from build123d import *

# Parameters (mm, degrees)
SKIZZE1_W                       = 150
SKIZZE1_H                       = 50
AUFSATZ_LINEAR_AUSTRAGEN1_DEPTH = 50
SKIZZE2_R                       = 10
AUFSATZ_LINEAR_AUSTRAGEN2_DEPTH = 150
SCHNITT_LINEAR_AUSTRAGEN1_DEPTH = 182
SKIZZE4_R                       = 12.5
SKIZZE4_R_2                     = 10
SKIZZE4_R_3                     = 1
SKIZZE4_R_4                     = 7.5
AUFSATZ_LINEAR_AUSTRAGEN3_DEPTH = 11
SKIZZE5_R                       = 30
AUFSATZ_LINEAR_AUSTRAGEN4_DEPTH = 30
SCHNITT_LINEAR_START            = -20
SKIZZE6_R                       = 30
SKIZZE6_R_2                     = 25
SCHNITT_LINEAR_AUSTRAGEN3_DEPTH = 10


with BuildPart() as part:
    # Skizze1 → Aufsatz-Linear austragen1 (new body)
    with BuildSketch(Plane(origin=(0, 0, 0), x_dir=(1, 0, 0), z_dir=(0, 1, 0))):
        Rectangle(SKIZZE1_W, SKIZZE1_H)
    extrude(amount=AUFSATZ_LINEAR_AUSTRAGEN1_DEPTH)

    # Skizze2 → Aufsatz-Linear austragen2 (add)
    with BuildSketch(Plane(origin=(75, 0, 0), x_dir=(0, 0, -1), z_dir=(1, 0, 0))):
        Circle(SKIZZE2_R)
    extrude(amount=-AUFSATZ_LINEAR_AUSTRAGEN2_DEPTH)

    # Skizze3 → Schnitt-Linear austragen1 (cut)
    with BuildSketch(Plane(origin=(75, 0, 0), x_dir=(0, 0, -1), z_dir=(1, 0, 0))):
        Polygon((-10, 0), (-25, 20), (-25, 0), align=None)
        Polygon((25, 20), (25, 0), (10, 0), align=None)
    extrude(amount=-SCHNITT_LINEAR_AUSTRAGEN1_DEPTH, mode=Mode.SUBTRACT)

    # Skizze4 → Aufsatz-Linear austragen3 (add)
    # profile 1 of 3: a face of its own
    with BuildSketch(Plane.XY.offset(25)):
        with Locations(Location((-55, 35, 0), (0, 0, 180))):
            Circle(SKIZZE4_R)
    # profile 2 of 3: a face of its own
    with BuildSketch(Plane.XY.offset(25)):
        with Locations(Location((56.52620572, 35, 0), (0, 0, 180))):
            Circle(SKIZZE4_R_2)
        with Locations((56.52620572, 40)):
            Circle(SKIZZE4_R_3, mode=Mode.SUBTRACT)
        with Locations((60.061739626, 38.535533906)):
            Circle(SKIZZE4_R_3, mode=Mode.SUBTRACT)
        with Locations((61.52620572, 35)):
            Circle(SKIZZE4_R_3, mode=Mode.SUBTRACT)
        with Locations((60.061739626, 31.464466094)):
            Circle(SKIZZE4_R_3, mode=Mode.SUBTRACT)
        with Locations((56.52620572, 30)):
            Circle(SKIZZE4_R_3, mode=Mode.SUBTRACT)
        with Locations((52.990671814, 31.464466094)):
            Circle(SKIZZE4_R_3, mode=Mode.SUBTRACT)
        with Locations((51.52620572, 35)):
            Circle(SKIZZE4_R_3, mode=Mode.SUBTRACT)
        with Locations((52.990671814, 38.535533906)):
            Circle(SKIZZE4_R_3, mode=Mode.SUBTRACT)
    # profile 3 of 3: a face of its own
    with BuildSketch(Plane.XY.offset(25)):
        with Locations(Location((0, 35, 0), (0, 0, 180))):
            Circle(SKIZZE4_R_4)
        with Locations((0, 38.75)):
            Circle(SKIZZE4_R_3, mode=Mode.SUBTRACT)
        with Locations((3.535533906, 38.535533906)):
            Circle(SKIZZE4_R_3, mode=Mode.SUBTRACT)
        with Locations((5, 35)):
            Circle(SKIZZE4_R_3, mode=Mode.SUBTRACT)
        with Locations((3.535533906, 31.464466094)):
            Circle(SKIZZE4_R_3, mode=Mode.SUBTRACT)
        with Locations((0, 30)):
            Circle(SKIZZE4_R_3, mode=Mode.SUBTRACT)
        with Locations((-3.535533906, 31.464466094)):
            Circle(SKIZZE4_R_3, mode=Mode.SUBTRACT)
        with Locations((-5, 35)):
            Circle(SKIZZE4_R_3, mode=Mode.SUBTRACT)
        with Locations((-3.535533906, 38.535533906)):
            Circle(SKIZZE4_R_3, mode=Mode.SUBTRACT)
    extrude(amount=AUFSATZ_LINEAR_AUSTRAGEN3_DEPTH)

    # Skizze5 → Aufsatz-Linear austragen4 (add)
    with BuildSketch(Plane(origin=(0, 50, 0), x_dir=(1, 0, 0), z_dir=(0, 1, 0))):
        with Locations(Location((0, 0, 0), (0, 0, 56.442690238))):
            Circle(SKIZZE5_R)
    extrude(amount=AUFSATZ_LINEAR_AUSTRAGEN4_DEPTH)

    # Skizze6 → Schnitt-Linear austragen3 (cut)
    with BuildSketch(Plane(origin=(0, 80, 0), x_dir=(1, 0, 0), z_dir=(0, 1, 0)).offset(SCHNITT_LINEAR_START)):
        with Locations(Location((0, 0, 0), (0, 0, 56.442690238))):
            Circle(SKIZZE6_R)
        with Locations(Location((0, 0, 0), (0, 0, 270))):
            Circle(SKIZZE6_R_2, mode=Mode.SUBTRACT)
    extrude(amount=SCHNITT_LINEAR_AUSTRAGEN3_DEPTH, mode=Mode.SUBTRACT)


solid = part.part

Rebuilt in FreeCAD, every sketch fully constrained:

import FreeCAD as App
import Part
import Sketcher
Q = App.Units.Quantity


def add_polygon(sketch, points):
    """Adds a closed chain of lines whose ends are joined by coincident constraints."""
    first, n = sketch.GeometryCount, len(points)
    for a, b in zip(points, points[1:] + points[:1]):
        sketch.addGeometry(Part.LineSegment(App.Vector(*a, 0), App.Vector(*b, 0)), False)
    for i in range(n):
        sketch.addConstraint(Sketcher.Constraint("Coincident", first + i, 2, first + (i + 1) % n, 1))

doc = App.newDocument("Part")
body = doc.addObject("PartDesign::Body", "Body")

sketch1 = doc.addObject("Sketcher::SketchObject", "Sketch")
body.addObject(sketch1)
sketch1.AttachmentSupport = (doc.XZ_Plane, [""])
sketch1.MapMode = "FlatFace"
add_polygon(sketch1, [(-75, -25), (-75, 25), (75, 25), (75, -25)])
sketch1.addConstraint(Sketcher.Constraint("Vertical", 0))
sketch1.addConstraint(Sketcher.Constraint("Horizontal", 1))
sketch1.addConstraint(Sketcher.Constraint("Vertical", 2))
sketch1.addConstraint(Sketcher.Constraint("Horizontal", 3))
sketch1.addConstraint(Sketcher.Constraint("Symmetric", 0, 2, 2, 2, -1, 1))
sketch1.addConstraint(Sketcher.Constraint("DistanceX", 1, 1, 1, 2, Q("150 mm")))
sketch1.addConstraint(Sketcher.Constraint("DistanceY", 0, 1, 0, 2, Q("50 mm")))
pad1 = doc.addObject("PartDesign::Pad", "Pad")
body.addObject(pad1)
pad1.Profile = sketch1
pad1.Length = 50
pad1.Reversed = True

sketch2 = doc.addObject("Sketcher::SketchObject", "Sketch001")
body.addObject(sketch2)
sketch2.AttachmentSupport = (doc.YZ_Plane, [""])
sketch2.MapMode = "FlatFace"
sketch2.AttachmentOffset = App.Placement(App.Vector(0, 0, 75), App.Rotation())
sketch2.addGeometry(Part.Circle(App.Vector(0, 0, 0), App.Vector(0, 0, 1), 10), False)
sketch2.addConstraint(Sketcher.Constraint("Coincident", 0, 3, -1, 1))
sketch2.addConstraint(Sketcher.Constraint("Diameter", 0, Q("20 mm")))
pad2 = doc.addObject("PartDesign::Pad", "Pad001")
body.addObject(pad2)
pad2.Profile = sketch2
pad2.Length = 150
pad2.Reversed = True

sketch3 = doc.addObject("Sketcher::SketchObject", "Sketch002")
body.addObject(sketch3)
sketch3.AttachmentSupport = (doc.YZ_Plane, [""])
sketch3.MapMode = "FlatFace"
sketch3.AttachmentOffset = App.Placement(App.Vector(0, 0, 75), App.Rotation())
add_polygon(sketch3, [(0, 10), (20, 25), (0, 25)])
add_polygon(sketch3, [(0, -25), (20, -25), (0, -10)])
sketch3.addConstraint(Sketcher.Constraint("Horizontal", 1))
sketch3.addConstraint(Sketcher.Constraint("Vertical", 2))
sketch3.addConstraint(Sketcher.Constraint("Horizontal", 3))
sketch3.addConstraint(Sketcher.Constraint("Vertical", 5))
sketch3.addConstraint(Sketcher.Constraint("Symmetric", 2, 2, 4, 2, -1, 1))
sketch3.addConstraint(Sketcher.Constraint("Symmetric", 0, 2, 3, 2, -1))
sketch3.addConstraint(Sketcher.Constraint("PointOnObject", 1, 2, -2))
sketch3.addConstraint(Sketcher.Constraint("DistanceX", 1, 2, 1, 1, Q("20 mm")))
sketch3.addConstraint(Sketcher.Constraint("DistanceY", 2, 2, 2, 1, Q("15 mm")))
sketch3.addConstraint(Sketcher.Constraint("DistanceY", -1, 1, 0, 2, Q("25 mm")))
pocket1 = doc.addObject("PartDesign::Pocket", "Pocket")
body.addObject(pocket1)
pocket1.Profile = sketch3
pocket1.Length = 182

sketch4 = doc.addObject("Sketcher::SketchObject", "Sketch003")
body.addObject(sketch4)
sketch4.AttachmentSupport = (doc.XY_Plane, [""])
sketch4.MapMode = "FlatFace"
sketch4.AttachmentOffset = App.Placement(App.Vector(0, 0, 25), App.Rotation())
sketch4.addGeometry(Part.Circle(App.Vector(-55, 35, 0), App.Vector(0, 0, 1), 12.5), False)
sketch4.addGeometry(Part.Circle(App.Vector(56.5, 35, 0), App.Vector(0, 0, 1), 10), False)
sketch4.addGeometry(Part.Circle(App.Vector(60.1, 38.5, 0), App.Vector(0, 0, 1), 1), False)
sketch4.addGeometry(Part.Circle(App.Vector(56.5, 40, 0), App.Vector(0, 0, 1), 1), False)
sketch4.addGeometry(Part.Circle(App.Vector(53, 38.5, 0), App.Vector(0, 0, 1), 1), False)
sketch4.addGeometry(Part.Circle(App.Vector(61.5, 35, 0), App.Vector(0, 0, 1), 1), False)
sketch4.addGeometry(Part.Circle(App.Vector(60.1, 31.5, 0), App.Vector(0, 0, 1), 1), False)
sketch4.addGeometry(Part.Circle(App.Vector(51.5, 35, 0), App.Vector(0, 0, 1), 1), False)
sketch4.addGeometry(Part.Circle(App.Vector(56.5, 30, 0), App.Vector(0, 0, 1), 1), False)
sketch4.addGeometry(Part.Circle(App.Vector(53, 31.5, 0), App.Vector(0, 0, 1), 1), False)
sketch4.addGeometry(Part.Circle(App.Vector(0, 35, 0), App.Vector(0, 0, 1), 7.5), False)
sketch4.addGeometry(Part.Circle(App.Vector(3.5, 38.5, 0), App.Vector(0, 0, 1), 1), False)
sketch4.addGeometry(Part.Circle(App.Vector(5, 35, 0), App.Vector(0, 0, 1), 1), False)
sketch4.addGeometry(Part.Circle(App.Vector(0, 38.8, 0), App.Vector(0, 0, 1), 1), False)
sketch4.addGeometry(Part.Circle(App.Vector(-3.5, 38.5, 0), App.Vector(0, 0, 1), 1), False)
sketch4.addGeometry(Part.Circle(App.Vector(-5, 35, 0), App.Vector(0, 0, 1), 1), False)
sketch4.addGeometry(Part.Circle(App.Vector(3.5, 31.5, 0), App.Vector(0, 0, 1), 1), False)
sketch4.addGeometry(Part.Circle(App.Vector(0, 30, 0), App.Vector(0, 0, 1), 1), False)
sketch4.addGeometry(Part.Circle(App.Vector(-3.5, 31.5, 0), App.Vector(0, 0, 1), 1), False)
sketch4.addConstraint(Sketcher.Constraint("Equal", 2, 3))
sketch4.addConstraint(Sketcher.Constraint("Equal", 3, 4))
sketch4.addConstraint(Sketcher.Constraint("Equal", 4, 5))
sketch4.addConstraint(Sketcher.Constraint("Equal", 5, 6))
sketch4.addConstraint(Sketcher.Constraint("Equal", 6, 7))
sketch4.addConstraint(Sketcher.Constraint("Equal", 7, 8))
sketch4.addConstraint(Sketcher.Constraint("Equal", 8, 9))
sketch4.addConstraint(Sketcher.Constraint("Equal", 9, 11))
sketch4.addConstraint(Sketcher.Constraint("Equal", 11, 12))
sketch4.addConstraint(Sketcher.Constraint("Equal", 12, 13))
sketch4.addConstraint(Sketcher.Constraint("Equal", 13, 14))
sketch4.addConstraint(Sketcher.Constraint("Equal", 14, 15))
sketch4.addConstraint(Sketcher.Constraint("Equal", 15, 16))
sketch4.addConstraint(Sketcher.Constraint("Equal", 16, 17))
sketch4.addConstraint(Sketcher.Constraint("Equal", 17, 18))
sketch4.addConstraint(Sketcher.Constraint("Symmetric", 11, 3, 14, 3, -2))
sketch4.addConstraint(Sketcher.Constraint("Symmetric", 12, 3, 15, 3, -2))
sketch4.addConstraint(Sketcher.Constraint("Symmetric", 16, 3, 18, 3, -2))
sketch4.addConstraint(Sketcher.Constraint("PointOnObject", 10, 3, -2))
sketch4.addConstraint(Sketcher.Constraint("PointOnObject", 13, 3, -2))
sketch4.addConstraint(Sketcher.Constraint("PointOnObject", 17, 3, -2))
sketch4.addConstraint(Sketcher.Constraint("Horizontal", 0, 3, 1, 3))
sketch4.addConstraint(Sketcher.Constraint("Horizontal", 2, 3, 4, 3))
sketch4.addConstraint(Sketcher.Constraint("Horizontal", 1, 3, 5, 3))
sketch4.addConstraint(Sketcher.Constraint("Horizontal", 5, 3, 7, 3))
sketch4.addConstraint(Sketcher.Constraint("Horizontal", 6, 3, 9, 3))
sketch4.addConstraint(Sketcher.Constraint("Horizontal", 7, 3, 10, 3))
sketch4.addConstraint(Sketcher.Constraint("Horizontal", 4, 3, 11, 3))
sketch4.addConstraint(Sketcher.Constraint("Horizontal", 10, 3, 12, 3))
sketch4.addConstraint(Sketcher.Constraint("Horizontal", 9, 3, 16, 3))
sketch4.addConstraint(Sketcher.Constraint("Horizontal", 8, 3, 17, 3))
sketch4.addConstraint(Sketcher.Constraint("Vertical", 1, 3, 3, 3))
sketch4.addConstraint(Sketcher.Constraint("Vertical", 2, 3, 6, 3))
sketch4.addConstraint(Sketcher.Constraint("Vertical", 3, 3, 8, 3))
sketch4.addConstraint(Sketcher.Constraint("Vertical", 4, 3, 9, 3))
sketch4.addConstraint(Sketcher.Constraint("Vertical", 11, 3, 16, 3))
sketch4.addConstraint(Sketcher.Constraint("Diameter", 0, Q("25 mm")))
sketch4.addConstraint(Sketcher.Constraint("Diameter", 1, Q("20 mm")))
sketch4.addConstraint(Sketcher.Constraint("Diameter", 2, Q("2 mm")))
sketch4.addConstraint(Sketcher.Constraint("Diameter", 10, Q("15 mm")))
sketch4.addConstraint(Sketcher.Constraint("DistanceX", 0, 3, -1, 1, Q("55 mm")))
sketch4.addConstraint(Sketcher.Constraint("DistanceY", -1, 1, 0, 3, Q("35 mm")))
sketch4.addConstraint(Sketcher.Constraint("DistanceY", -1, 1, 3, 3, Q("40 mm")))
sketch4.addConstraint(Sketcher.Constraint("DistanceY", -1, 1, 8, 3, Q("30 mm")))
sketch4.addConstraint(Sketcher.Constraint("DistanceX", -1, 1, 12, 3, Q("5 mm")))
sketch4.addConstraint(Sketcher.Constraint("DistanceX", 1, 3, 5, 3, Q("5 mm")))
sketch4.addConstraint(Sketcher.Constraint("DistanceX", 7, 3, 1, 3, Q("5 mm")))
sketch4.addConstraint(Sketcher.Constraint("DistanceY", -1, 1, 13, 3, Q("38.75 mm")))
sketch4.addConstraint(Sketcher.Constraint("DistanceX", -1, 1, 2, 3, Q("60.06174 mm")))
sketch4.addConstraint(Sketcher.Constraint("DistanceX", -1, 1, 4, 3, Q("52.990672 mm")))
sketch4.addConstraint(Sketcher.Constraint("DistanceX", 11, 3, 7, 3, Q("47.990672 mm")))
sketch4.addConstraint(Sketcher.Constraint("DistanceX", -1, 1, 1, 3, Q("56.526206 mm")))
sketch4.addConstraint(Sketcher.Constraint("DistanceY", -1, 1, 2, 3, Q("38.535534 mm")))
sketch4.addConstraint(Sketcher.Constraint("DistanceY", -1, 1, 6, 3, Q("31.464466 mm")))
pad3 = doc.addObject("PartDesign::Pad", "Pad002")
body.addObject(pad3)
pad3.Profile = sketch4
pad3.Length = 11

sketch5 = doc.addObject("Sketcher::SketchObject", "Sketch004")
body.addObject(sketch5)
sketch5.AttachmentSupport = (doc.XZ_Plane, [""])
sketch5.MapMode = "FlatFace"
sketch5.AttachmentOffset = App.Placement(App.Vector(0, 0, -50), App.Rotation())
sketch5.addGeometry(Part.Circle(App.Vector(0, 0, 0), App.Vector(0, 0, 1), 30), False)
sketch5.addConstraint(Sketcher.Constraint("Coincident", 0, 3, -1, 1))
sketch5.addConstraint(Sketcher.Constraint("Diameter", 0, Q("60 mm")))
pad4 = doc.addObject("PartDesign::Pad", "Pad003")
body.addObject(pad4)
pad4.Profile = sketch5
pad4.Length = 30
pad4.Reversed = True

sketch6 = doc.addObject("Sketcher::SketchObject", "Sketch005")
body.addObject(sketch6)
sketch6.AttachmentSupport = (doc.XZ_Plane, [""])
sketch6.MapMode = "FlatFace"
sketch6.AttachmentOffset = App.Placement(App.Vector(0, 0, -60), App.Rotation())
sketch6.addGeometry(Part.Circle(App.Vector(0, 0, 0), App.Vector(0, 0, 1), 30), False)
sketch6.addGeometry(Part.Circle(App.Vector(0, 0, 0), App.Vector(0, 0, 1), 25), False)
sketch6.addConstraint(Sketcher.Constraint("Coincident", 0, 3, -1, 1))
sketch6.addConstraint(Sketcher.Constraint("Coincident", 1, 3, -1, 1))
sketch6.addConstraint(Sketcher.Constraint("Diameter", 0, Q("60 mm")))
sketch6.addConstraint(Sketcher.Constraint("Diameter", 1, Q("50 mm")))
pocket2 = doc.addObject("PartDesign::Pocket", "Pocket001")
body.addObject(pocket2)
pocket2.Profile = sketch6
pocket2.Length = 10

doc.recompute()
